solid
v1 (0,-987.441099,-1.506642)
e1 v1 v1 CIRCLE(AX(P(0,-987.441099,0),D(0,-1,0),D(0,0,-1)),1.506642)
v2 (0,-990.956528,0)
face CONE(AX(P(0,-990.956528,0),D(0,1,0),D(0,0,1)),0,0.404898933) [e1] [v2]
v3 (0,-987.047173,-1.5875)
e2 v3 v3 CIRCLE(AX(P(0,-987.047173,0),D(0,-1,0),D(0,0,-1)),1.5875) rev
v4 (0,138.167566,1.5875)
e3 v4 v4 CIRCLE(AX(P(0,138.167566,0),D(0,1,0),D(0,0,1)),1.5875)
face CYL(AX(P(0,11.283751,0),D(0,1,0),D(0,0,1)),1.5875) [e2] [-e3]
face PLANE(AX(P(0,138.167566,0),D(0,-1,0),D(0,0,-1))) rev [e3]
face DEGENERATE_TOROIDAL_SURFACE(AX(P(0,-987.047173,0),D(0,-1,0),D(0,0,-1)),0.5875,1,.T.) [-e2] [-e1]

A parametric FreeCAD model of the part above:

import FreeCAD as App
import Part
import Sketcher


def edges_at(feature, points):
    """Names of the edges that pass closest to the given points."""
    edges = feature.Shape.Edges
    near = lambda p: min(range(len(edges)), key=lambda i: edges[i].distToShape(Part.Vertex(*p))[0])
    return sorted({f"Edge{near(p) + 1}" for p in points})

doc = App.newDocument("Part")
body = doc.addObject("PartDesign::Body", "Body")

# Sketch on XY plane
sketch1 = doc.addObject("Sketcher::SketchObject", "Sketch")
body.addObject(sketch1)
sketch1.AttachmentSupport = (doc.XY_Plane, [""])
sketch1.MapMode = "FlatFace"
sketch1.addGeometry([
    Part.LineSegment(App.Vector(1.6, 138.2, 0), App.Vector(0, 138.2, 0)),
    Part.LineSegment(App.Vector(0, 138.2, 0), App.Vector(0, -991, 0)),
    Part.LineSegment(App.Vector(0, -991, 0), App.Vector(1.6, -987.3, 0)),
    Part.LineSegment(App.Vector(1.6, -987.3, 0), App.Vector(1.6, 138.2, 0)),
], False)
sketch1.addConstraint([
    Sketcher.Constraint("Coincident", 0, 2, 1, 1),
    Sketcher.Constraint("Coincident", 1, 2, 2, 1),
    Sketcher.Constraint("Coincident", 2, 2, 3, 1),
    Sketcher.Constraint("Coincident", 3, 2, 0, 1),
    Sketcher.Constraint("Horizontal", 0),
    Sketcher.Constraint("Vertical", 1),
    Sketcher.Constraint("Vertical", 3),
    Sketcher.Constraint("PointOnObject", 0, 2, -2),
    Sketcher.Constraint("DistanceY", 3, 1, 3, 2, 1125.42),
    Sketcher.Constraint("DistanceX", 0, 2, 0, 1, 1.5875),
    Sketcher.Constraint("DistanceY", 1, 2, 1, 1, 1129.124094),
    Sketcher.Constraint("DistanceY", -1, 1, 0, 2, 138.167566),
])
revolution = doc.addObject("PartDesign::Revolution", "Revolution")
body.addObject(revolution)
revolution.Profile = sketch1
revolution.ReferenceAxis = (sketch1, ["V_Axis"])
revolution.Angle = 360
doc.recompute()

fillet = doc.addObject("PartDesign::Fillet", "Fillet")
body.addObject(fillet)
fillet.Base = (revolution, edges_at(revolution, [(-1.587, -987.252, 0)]))
fillet.Radius = 1

doc.recompute()
